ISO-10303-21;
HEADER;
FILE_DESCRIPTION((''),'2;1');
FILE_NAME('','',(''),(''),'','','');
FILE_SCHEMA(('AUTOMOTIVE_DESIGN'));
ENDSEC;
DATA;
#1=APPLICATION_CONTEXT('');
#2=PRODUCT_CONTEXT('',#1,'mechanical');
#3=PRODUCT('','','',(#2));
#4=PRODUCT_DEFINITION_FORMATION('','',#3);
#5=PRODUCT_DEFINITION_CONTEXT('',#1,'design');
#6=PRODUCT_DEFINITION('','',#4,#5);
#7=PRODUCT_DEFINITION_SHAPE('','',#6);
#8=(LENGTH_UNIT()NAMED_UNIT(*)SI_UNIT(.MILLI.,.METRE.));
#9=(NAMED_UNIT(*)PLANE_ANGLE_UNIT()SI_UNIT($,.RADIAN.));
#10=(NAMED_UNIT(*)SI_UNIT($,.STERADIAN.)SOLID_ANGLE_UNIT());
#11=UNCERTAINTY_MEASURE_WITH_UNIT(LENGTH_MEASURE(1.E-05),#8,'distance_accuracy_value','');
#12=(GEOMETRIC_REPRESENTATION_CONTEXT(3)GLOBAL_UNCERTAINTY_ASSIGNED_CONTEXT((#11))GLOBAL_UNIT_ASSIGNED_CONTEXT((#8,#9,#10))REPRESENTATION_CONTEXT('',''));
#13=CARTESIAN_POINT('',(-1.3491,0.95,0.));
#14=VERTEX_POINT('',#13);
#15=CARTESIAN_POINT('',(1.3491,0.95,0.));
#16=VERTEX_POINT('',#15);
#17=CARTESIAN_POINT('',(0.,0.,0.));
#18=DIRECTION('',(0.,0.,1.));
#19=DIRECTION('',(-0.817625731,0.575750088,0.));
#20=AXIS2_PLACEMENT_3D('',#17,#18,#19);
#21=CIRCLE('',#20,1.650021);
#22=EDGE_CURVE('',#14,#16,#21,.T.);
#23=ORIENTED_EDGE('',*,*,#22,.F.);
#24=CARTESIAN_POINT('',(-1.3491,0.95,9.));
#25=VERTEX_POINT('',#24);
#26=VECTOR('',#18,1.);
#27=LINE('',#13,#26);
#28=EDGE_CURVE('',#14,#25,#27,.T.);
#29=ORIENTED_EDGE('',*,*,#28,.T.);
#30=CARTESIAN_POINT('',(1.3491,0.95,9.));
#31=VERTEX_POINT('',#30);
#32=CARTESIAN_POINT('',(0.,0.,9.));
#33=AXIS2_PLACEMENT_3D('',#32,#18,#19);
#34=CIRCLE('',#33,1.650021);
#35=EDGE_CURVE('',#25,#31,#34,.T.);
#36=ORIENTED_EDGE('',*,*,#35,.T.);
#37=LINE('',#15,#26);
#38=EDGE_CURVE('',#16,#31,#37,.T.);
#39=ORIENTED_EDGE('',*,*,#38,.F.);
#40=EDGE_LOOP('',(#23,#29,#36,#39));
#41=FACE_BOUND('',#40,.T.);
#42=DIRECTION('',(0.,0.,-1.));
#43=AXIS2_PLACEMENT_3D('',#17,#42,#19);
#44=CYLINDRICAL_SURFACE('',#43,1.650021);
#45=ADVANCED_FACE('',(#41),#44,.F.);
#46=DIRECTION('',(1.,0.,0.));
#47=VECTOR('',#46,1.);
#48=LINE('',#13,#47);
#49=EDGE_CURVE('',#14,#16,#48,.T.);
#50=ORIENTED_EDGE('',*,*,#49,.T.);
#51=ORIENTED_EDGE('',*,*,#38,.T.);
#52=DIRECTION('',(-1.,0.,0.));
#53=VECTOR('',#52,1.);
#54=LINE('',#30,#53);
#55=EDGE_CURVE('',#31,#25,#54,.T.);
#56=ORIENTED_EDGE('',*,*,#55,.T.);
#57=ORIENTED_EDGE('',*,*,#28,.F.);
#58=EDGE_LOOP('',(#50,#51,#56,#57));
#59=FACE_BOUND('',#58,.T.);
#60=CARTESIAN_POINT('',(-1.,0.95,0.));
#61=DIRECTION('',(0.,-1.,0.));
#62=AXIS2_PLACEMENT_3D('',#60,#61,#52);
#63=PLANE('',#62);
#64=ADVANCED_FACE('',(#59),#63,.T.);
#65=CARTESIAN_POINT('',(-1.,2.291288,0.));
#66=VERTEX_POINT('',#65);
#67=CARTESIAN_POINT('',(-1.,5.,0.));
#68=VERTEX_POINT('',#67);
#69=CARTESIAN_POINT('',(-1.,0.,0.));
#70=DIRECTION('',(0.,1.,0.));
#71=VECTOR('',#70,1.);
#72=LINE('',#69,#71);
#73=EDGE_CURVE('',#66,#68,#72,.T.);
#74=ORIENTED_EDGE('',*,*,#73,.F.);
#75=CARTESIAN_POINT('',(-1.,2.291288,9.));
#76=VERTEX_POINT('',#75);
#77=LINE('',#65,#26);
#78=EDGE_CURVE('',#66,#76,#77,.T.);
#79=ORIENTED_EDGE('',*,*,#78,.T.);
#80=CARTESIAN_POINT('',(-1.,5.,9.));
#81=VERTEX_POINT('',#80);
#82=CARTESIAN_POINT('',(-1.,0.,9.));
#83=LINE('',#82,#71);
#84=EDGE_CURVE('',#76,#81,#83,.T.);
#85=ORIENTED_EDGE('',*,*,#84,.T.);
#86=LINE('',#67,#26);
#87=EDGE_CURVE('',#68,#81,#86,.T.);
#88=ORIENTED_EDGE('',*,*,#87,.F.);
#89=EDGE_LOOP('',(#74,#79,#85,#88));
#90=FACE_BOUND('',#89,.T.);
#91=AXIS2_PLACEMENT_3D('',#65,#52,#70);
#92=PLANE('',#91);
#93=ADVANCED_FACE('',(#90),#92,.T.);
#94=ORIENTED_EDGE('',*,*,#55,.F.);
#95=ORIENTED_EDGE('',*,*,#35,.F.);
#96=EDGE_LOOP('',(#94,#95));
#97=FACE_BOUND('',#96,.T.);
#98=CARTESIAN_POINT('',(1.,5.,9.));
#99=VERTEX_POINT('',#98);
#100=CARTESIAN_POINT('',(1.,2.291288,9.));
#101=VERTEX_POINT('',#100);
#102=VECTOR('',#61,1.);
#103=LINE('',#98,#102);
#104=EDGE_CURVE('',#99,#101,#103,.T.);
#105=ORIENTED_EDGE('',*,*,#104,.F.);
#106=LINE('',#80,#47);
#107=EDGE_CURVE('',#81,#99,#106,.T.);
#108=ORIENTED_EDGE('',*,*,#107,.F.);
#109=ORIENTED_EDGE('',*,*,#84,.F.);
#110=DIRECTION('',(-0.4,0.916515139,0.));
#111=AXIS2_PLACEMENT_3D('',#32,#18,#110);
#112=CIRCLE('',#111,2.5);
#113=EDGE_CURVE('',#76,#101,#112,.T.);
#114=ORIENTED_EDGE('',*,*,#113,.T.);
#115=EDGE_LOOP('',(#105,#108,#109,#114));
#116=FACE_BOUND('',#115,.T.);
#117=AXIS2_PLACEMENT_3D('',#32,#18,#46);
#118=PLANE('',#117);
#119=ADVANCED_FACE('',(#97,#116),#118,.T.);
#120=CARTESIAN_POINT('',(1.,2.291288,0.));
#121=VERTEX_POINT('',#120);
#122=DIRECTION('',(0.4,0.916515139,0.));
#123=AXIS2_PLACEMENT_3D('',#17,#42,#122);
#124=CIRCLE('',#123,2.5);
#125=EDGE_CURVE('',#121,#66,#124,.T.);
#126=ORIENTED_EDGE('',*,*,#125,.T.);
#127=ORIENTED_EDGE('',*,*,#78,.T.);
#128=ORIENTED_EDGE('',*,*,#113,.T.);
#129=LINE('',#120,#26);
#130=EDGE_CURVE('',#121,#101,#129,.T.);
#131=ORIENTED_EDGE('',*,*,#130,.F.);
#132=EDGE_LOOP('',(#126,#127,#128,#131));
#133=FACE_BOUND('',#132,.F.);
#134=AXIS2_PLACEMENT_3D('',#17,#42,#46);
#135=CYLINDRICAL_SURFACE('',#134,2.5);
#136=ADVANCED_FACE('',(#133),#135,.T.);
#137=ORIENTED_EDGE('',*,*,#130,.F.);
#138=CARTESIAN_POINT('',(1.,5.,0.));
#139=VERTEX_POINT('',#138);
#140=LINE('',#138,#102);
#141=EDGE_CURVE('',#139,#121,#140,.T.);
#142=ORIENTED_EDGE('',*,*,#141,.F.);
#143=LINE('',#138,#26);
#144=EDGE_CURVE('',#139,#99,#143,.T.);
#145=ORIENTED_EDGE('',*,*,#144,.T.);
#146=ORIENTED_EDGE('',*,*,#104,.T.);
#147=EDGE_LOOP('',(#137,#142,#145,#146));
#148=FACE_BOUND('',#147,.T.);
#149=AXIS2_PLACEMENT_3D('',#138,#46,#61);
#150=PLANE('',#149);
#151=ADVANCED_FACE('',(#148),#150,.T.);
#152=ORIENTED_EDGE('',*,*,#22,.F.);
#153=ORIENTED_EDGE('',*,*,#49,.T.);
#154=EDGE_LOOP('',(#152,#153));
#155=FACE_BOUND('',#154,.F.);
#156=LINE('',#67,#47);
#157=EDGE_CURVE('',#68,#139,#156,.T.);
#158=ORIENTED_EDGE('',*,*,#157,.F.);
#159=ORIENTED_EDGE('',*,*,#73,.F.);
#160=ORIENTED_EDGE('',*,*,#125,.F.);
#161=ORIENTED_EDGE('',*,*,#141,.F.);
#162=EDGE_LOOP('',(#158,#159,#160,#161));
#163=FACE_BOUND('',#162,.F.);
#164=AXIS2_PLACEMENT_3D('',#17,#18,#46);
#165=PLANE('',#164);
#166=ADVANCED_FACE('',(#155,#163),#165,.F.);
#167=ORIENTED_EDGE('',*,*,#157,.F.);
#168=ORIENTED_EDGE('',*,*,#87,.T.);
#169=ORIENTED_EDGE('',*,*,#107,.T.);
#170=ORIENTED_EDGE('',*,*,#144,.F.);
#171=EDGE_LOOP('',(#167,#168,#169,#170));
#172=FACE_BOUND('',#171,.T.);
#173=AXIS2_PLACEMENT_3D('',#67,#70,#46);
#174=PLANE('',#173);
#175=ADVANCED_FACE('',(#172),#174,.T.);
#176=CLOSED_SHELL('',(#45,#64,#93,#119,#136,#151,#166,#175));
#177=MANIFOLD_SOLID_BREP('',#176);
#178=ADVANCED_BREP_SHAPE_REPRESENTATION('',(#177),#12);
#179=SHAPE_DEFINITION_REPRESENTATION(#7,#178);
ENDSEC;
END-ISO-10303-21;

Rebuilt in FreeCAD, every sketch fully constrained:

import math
import FreeCAD as App
import Part
import Sketcher

doc = App.newDocument("Part")
body = doc.addObject("PartDesign::Body", "Body")

sketch1 = doc.addObject("Sketcher::SketchObject", "Sketch")
body.addObject(sketch1)
sketch1.AttachmentSupport = (doc.XY_Plane, [""])
sketch1.MapMode = "FlatFace"
sketch1.addGeometry(Part.LineSegment(App.Vector(1, 2.291288, 0), App.Vector(1, 5, 0)), False)
sketch1.addGeometry(Part.LineSegment(App.Vector(1, 5, 0), App.Vector(-1, 5, 0)), False)
sketch1.addGeometry(Part.LineSegment(App.Vector(-1, 5, 0), App.Vector(-1, 2.291288, 0)), False)
sketch1.addGeometry(Part.ArcOfCircle(Part.Circle(App.Vector(0, 0, 0), App.Vector(0, 0, 1), 2.5), math.radians(113.578178), math.radians(426.421822)), False)
sketch1.addGeometry(Part.ArcOfCircle(Part.Circle(App.Vector(0, 0, 0), App.Vector(0, 0, 1), 1.650021), math.radians(144.847822), math.radians(395.152178)), False)
sketch1.addGeometry(Part.LineSegment(App.Vector(-1.3491, 0.95, 0), App.Vector(1.3491, 0.95, 0)), False)
sketch1.addConstraint(Sketcher.Constraint("Coincident", 0, 2, 1, 1))
sketch1.addConstraint(Sketcher.Constraint("Coincident", 1, 2, 2, 1))
sketch1.addConstraint(Sketcher.Constraint("Coincident", 2, 2, 3, 1))
sketch1.addConstraint(Sketcher.Constraint("Coincident", 3, 2, 0, 1))
sketch1.addConstraint(Sketcher.Constraint("Coincident", 4, 1, 5, 1))
sketch1.addConstraint(Sketcher.Constraint("Coincident", 5, 2, 4, 2))
sketch1.addConstraint(Sketcher.Constraint("Vertical", 0))
sketch1.addConstraint(Sketcher.Constraint("Horizontal", 1))
sketch1.addConstraint(Sketcher.Constraint("Vertical", 2))
sketch1.addConstraint(Sketcher.Constraint("Horizontal", 5))
sketch1.addConstraint(Sketcher.Constraint("Coincident", 3, 3, -1, 1))
sketch1.addConstraint(Sketcher.Constraint("Coincident", 4, 3, -1, 1))
sketch1.addConstraint(Sketcher.Constraint("Horizontal", 2, 2, 3, 2))
sketch1.addConstraint(Sketcher.Constraint("Radius", 3, 2.5))
sketch1.addConstraint(Sketcher.Constraint("DistanceX", 1, 2, 1, 1, 2.0))
sketch1.addConstraint(Sketcher.Constraint("Radius", 4, 1.65))
sketch1.addConstraint(Sketcher.Constraint("DistanceY", -1, 1, 0, 2, 5.0))
sketch1.addConstraint(Sketcher.Constraint("DistanceY", -1, 1, 4, 1, 0.95))
pad1 = doc.addObject("PartDesign::Pad", "Pad")
body.addObject(pad1)
pad1.Profile = sketch1
pad1.Length = 9

doc.recompute()
